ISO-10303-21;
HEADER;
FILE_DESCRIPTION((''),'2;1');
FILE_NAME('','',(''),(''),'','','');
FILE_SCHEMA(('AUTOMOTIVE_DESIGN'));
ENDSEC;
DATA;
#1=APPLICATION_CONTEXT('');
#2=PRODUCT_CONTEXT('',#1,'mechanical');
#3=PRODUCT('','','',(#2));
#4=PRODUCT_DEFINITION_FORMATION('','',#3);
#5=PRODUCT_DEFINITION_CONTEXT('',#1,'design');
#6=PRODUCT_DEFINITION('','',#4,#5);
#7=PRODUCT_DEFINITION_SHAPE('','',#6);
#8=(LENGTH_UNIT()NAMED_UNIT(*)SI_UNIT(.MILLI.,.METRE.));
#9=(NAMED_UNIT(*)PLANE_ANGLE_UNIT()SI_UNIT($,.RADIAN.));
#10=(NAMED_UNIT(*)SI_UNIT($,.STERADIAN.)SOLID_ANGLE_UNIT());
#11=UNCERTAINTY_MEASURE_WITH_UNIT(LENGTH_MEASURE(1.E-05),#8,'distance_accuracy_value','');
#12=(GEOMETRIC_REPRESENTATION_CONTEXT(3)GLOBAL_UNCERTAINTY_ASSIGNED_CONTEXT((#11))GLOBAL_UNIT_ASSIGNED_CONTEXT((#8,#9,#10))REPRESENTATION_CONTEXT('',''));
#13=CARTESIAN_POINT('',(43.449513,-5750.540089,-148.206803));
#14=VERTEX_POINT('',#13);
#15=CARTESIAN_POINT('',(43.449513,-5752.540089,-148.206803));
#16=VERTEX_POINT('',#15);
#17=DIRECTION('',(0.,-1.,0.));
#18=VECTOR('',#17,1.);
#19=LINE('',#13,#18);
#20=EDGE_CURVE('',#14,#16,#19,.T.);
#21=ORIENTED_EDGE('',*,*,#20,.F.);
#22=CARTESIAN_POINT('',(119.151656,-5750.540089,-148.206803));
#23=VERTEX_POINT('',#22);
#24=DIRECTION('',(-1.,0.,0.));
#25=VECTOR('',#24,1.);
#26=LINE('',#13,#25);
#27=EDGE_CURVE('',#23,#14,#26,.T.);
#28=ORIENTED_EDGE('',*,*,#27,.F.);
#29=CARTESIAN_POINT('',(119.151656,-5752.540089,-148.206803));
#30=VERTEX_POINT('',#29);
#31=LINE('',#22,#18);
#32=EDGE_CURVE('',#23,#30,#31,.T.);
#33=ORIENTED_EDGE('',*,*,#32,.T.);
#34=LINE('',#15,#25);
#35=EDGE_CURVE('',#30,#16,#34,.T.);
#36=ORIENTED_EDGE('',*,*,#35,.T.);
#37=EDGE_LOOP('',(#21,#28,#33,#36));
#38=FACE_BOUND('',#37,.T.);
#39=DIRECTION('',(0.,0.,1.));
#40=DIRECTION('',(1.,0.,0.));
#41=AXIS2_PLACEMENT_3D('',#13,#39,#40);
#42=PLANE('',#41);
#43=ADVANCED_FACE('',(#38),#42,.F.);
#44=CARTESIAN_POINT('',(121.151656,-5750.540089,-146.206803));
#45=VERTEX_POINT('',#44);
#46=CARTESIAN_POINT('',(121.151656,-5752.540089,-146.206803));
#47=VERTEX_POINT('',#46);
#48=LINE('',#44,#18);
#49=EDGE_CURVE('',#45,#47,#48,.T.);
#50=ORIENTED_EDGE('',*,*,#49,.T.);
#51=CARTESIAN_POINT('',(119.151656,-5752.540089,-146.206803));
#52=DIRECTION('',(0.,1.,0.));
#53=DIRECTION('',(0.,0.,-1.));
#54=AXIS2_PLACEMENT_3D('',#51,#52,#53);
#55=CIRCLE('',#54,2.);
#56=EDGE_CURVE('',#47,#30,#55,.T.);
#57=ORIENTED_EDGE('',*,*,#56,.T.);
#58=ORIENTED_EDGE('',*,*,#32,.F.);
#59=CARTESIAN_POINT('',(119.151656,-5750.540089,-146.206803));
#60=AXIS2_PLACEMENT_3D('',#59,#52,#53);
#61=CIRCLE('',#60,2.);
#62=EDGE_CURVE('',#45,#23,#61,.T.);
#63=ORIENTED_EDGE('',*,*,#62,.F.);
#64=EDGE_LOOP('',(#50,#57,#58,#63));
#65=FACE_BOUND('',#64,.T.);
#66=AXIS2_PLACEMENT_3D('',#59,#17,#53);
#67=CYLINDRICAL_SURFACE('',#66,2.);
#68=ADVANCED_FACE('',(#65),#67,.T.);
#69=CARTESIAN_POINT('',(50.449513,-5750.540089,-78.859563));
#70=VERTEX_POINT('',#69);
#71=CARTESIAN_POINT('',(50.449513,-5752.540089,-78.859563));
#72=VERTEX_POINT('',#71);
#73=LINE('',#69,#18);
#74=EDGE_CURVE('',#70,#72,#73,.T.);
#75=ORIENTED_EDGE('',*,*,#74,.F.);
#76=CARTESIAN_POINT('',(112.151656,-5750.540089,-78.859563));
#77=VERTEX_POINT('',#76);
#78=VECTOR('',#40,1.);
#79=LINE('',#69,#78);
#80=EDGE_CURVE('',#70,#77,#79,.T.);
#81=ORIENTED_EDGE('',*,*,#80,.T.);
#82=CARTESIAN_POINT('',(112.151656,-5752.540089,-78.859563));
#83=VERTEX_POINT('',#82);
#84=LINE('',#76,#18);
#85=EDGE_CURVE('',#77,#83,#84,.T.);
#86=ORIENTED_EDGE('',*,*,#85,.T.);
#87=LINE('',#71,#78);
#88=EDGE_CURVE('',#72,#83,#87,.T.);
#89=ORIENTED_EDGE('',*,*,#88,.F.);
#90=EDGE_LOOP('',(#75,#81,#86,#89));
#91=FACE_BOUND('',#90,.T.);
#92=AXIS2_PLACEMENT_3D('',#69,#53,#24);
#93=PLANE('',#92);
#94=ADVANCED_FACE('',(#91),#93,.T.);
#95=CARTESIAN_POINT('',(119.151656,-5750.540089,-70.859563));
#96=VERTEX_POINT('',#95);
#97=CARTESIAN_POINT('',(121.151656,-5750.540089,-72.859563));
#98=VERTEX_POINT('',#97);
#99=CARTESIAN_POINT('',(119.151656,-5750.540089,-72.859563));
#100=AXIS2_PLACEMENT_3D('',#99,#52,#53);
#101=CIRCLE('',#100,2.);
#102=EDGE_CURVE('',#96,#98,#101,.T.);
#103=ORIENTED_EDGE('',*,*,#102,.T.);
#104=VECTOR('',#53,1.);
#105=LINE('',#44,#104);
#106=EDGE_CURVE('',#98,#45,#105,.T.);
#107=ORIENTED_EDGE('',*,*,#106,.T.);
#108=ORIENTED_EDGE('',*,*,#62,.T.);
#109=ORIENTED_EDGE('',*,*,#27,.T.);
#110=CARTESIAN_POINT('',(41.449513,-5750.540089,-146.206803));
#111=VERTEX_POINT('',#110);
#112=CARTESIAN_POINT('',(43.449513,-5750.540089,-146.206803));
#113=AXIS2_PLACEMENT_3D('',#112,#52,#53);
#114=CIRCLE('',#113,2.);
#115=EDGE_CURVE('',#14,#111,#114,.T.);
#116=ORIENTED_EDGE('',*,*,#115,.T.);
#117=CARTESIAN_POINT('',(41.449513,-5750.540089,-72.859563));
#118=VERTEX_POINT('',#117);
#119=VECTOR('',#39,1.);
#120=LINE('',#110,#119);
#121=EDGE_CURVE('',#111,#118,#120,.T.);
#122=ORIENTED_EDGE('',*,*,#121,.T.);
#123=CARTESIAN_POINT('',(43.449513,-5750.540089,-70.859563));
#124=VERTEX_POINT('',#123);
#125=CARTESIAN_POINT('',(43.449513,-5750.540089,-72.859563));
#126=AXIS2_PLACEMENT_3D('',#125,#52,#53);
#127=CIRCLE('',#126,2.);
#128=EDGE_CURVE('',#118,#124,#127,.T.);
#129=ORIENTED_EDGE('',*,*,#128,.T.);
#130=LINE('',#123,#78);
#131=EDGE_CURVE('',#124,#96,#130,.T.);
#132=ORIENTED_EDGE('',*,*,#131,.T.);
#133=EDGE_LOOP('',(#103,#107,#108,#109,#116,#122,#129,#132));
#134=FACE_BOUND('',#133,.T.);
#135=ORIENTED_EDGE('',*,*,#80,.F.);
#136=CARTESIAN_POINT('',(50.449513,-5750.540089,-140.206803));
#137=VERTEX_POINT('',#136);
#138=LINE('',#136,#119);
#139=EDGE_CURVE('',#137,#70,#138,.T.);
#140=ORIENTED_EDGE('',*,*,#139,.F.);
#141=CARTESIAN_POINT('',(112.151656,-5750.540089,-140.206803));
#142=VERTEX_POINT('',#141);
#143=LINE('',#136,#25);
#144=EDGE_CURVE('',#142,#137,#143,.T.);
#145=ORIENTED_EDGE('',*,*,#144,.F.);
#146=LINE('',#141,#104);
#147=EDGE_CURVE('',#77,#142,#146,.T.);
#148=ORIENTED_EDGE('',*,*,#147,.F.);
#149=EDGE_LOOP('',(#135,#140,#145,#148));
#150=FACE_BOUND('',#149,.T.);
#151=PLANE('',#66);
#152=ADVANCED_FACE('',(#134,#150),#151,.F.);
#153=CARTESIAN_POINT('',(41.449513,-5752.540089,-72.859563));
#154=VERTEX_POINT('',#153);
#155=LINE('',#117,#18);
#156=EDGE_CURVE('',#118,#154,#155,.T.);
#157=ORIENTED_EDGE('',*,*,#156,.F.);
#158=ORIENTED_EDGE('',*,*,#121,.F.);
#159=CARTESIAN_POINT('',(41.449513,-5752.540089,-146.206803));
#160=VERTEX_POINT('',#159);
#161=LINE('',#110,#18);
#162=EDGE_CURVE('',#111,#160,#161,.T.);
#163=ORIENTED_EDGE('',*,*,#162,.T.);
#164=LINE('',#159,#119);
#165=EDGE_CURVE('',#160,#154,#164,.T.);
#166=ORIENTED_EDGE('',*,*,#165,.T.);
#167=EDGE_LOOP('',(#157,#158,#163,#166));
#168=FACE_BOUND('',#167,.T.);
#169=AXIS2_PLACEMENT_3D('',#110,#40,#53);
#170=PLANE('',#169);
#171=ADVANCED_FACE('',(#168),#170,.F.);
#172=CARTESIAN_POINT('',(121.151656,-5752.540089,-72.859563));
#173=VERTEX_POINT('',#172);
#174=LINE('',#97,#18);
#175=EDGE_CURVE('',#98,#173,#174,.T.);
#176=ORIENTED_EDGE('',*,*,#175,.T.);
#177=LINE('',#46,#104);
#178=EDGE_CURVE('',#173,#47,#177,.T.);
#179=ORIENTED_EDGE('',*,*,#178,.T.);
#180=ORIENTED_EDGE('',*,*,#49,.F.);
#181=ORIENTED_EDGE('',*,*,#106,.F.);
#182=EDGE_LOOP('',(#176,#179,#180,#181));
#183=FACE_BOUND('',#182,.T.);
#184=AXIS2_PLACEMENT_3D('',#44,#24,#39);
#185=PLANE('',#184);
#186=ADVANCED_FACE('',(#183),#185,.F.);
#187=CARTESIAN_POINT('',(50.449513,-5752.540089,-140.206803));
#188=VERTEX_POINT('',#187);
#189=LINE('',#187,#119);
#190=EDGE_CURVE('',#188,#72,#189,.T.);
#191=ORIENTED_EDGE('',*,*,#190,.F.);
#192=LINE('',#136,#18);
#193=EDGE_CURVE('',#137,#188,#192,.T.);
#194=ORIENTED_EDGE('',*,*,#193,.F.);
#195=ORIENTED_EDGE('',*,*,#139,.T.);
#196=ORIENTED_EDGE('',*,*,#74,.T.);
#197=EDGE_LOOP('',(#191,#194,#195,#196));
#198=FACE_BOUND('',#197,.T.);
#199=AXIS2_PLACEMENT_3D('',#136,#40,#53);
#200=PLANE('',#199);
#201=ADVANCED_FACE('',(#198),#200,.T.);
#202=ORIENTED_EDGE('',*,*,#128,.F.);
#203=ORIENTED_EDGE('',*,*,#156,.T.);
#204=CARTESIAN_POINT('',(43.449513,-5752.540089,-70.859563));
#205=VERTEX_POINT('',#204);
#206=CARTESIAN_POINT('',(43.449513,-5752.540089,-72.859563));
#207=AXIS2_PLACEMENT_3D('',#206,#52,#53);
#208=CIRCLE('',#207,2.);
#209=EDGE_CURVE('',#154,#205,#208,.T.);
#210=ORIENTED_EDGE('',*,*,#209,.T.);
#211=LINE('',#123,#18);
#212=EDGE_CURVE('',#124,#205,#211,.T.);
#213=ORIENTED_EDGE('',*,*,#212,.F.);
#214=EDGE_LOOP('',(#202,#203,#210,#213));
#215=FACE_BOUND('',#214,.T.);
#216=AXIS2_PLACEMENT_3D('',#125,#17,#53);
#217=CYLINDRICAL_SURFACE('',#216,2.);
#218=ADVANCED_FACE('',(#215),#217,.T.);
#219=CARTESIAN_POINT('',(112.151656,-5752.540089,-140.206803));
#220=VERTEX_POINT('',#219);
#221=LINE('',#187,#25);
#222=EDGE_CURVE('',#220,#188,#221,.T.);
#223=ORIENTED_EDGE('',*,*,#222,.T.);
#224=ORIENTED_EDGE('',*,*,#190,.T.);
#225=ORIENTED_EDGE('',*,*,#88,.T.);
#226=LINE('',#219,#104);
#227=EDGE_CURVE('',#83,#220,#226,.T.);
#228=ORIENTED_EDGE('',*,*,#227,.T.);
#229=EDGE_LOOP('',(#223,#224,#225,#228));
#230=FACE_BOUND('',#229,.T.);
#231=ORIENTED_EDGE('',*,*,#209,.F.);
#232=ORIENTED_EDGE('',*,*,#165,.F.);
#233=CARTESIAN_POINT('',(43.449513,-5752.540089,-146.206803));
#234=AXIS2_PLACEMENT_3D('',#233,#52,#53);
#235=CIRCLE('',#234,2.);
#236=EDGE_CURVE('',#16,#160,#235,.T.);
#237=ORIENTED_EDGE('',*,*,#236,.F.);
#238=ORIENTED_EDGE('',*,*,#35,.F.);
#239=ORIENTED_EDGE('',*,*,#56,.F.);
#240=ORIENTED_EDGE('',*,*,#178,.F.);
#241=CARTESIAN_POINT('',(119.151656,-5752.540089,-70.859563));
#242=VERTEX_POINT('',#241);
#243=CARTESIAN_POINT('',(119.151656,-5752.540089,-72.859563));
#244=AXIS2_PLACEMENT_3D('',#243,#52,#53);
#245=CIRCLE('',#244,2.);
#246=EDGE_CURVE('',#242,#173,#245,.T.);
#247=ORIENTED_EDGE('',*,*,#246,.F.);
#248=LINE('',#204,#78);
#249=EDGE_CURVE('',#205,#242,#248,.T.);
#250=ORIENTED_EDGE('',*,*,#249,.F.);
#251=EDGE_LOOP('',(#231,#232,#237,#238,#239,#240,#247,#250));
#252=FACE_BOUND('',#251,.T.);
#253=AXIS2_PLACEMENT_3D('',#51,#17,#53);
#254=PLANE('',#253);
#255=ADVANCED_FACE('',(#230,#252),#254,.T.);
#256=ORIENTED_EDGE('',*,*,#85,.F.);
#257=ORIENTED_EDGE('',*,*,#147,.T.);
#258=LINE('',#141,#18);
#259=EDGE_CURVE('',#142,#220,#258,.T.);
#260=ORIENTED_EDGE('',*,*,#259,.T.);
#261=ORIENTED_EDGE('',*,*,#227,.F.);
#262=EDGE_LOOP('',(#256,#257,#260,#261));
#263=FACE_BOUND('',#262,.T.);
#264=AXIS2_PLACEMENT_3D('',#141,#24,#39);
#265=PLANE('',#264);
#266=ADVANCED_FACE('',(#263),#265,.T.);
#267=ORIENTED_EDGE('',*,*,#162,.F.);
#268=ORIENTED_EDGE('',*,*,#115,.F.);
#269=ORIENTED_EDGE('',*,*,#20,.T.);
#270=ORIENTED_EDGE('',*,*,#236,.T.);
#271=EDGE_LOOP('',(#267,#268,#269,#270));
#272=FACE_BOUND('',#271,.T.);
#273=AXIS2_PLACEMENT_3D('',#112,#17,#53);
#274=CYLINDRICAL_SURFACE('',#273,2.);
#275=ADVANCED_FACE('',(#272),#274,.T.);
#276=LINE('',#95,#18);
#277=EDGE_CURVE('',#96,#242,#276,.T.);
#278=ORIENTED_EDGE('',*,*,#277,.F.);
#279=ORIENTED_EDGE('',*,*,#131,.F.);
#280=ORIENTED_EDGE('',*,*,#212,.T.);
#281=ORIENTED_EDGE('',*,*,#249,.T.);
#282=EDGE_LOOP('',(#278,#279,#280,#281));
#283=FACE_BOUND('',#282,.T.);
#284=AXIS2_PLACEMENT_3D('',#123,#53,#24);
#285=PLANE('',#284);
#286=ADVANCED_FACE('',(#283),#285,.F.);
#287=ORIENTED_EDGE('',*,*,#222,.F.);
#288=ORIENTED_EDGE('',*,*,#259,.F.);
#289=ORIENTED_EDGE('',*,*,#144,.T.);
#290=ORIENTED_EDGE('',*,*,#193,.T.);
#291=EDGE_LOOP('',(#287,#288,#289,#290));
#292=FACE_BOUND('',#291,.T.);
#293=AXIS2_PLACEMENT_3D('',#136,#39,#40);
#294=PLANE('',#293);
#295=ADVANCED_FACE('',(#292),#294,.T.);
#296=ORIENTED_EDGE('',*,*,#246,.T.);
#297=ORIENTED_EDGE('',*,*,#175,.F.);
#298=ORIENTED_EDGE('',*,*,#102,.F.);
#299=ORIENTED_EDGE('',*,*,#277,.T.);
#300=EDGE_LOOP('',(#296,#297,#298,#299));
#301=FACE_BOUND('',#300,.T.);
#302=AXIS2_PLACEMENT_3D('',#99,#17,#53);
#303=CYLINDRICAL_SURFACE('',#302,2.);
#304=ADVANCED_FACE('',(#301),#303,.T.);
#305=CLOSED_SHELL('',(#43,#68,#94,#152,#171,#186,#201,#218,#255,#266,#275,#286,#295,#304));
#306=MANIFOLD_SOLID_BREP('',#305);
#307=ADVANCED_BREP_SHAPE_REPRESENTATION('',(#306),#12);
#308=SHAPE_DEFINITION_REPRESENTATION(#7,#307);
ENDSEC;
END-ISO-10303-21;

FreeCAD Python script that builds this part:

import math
import FreeCAD as App
import Part
import Sketcher
from FreeCAD import Vector
Q = App.Units.Quantity


def add_polygon(sketch, points):
    """Adds a closed chain of lines whose ends are joined by coincident constraints."""
    first, n = sketch.GeometryCount, len(points)
    for a, b in zip(points, points[1:] + points[:1]):
        sketch.addGeometry(Part.LineSegment(App.Vector(*a, 0), App.Vector(*b, 0)), False)
    for i in range(n):
        sketch.addConstraint(Sketcher.Constraint("Coincident", first + i, 2, first + (i + 1) % n, 1))

doc = App.newDocument("Part")
body = doc.addObject("PartDesign::Body", "Body")

# Sketch on XZ plane
sketch1 = body.newObject("Sketcher::SketchObject", "Sketch")
sketch1.AttachmentSupport = (doc.getObject("XZ_Plane"), [""])
sketch1.MapMode = "FlatFace"
sketch1.AttachmentOffset = App.Placement(Vector(0, 0, 5752.540089), App.Rotation())
sketch1.addGeometry(Part.LineSegment(Vector(119.2, -148.2, 0), Vector(43.4, -148.2, 0)), False)  # 0
sketch1.addGeometry(Part.ArcOfCircle(Part.Circle(Vector(43.4, -146.2, 0), Vector(0, 0, 1), 2), math.radians(180), math.radians(270)), False)  # 1
sketch1.addGeometry(Part.LineSegment(Vector(41.4, -146.2, 0), Vector(41.4, -72.9, 0)), False)  # 2
sketch1.addGeometry(Part.ArcOfCircle(Part.Circle(Vector(43.4, -72.9, 0), Vector(0, 0, 1), 2), math.radians(90), math.radians(180)), False)  # 3
sketch1.addGeometry(Part.LineSegment(Vector(43.4, -70.9, 0), Vector(119.2, -70.9, 0)), False)  # 4
sketch1.addGeometry(Part.ArcOfCircle(Part.Circle(Vector(119.2, -72.9, 0), Vector(0, 0, 1), 2), math.radians(0), math.radians(90)), False)  # 5
sketch1.addGeometry(Part.LineSegment(Vector(121.2, -72.9, 0), Vector(121.2, -146.2, 0)), False)  # 6
sketch1.addGeometry(Part.ArcOfCircle(Part.Circle(Vector(119.2, -146.2, 0), Vector(0, 0, 1), 2), math.radians(-90), math.radians(0)), False)  # 7
add_polygon(sketch1, [(50.4, -78.9), (50.4, -140.2), (112.2, -140.2), (112.2, -78.9)])  # lines 8-11
sketch1.addConstraint([
    Sketcher.Constraint("Tangent", 0, 2, 1, 2),
    Sketcher.Constraint("Tangent", 1, 1, 2, 1),
    Sketcher.Constraint("Tangent", 2, 2, 3, 2),
    Sketcher.Constraint("Tangent", 3, 1, 4, 1),
    Sketcher.Constraint("Tangent", 4, 2, 5, 2),
    Sketcher.Constraint("Tangent", 5, 1, 6, 1),
    Sketcher.Constraint("Tangent", 6, 2, 7, 2),
    Sketcher.Constraint("Tangent", 7, 1, 0, 1),
    Sketcher.Constraint("Horizontal", 0),
    Sketcher.Constraint("Vertical", 2),
    Sketcher.Constraint("Horizontal", 4),
    Sketcher.Constraint("Vertical", 6),
    Sketcher.Constraint("Vertical", 8),
    Sketcher.Constraint("Horizontal", 9),
    Sketcher.Constraint("Vertical", 10),
    Sketcher.Constraint("Horizontal", 11),
    Sketcher.Constraint("Equal", 1, 3),
    Sketcher.Constraint("Equal", 3, 5),
    Sketcher.Constraint("Equal", 5, 7),
    Sketcher.Constraint("Radius", 1, Q("2 mm")),
    Sketcher.Constraint("DistanceX", 1, 3, 8, 2, Q("7 mm")),
    Sketcher.Constraint("DistanceY", 1, 3, 8, 2, Q("6 mm")),
    Sketcher.Constraint("DistanceX", 9, 2, 7, 3, Q("7 mm")),
    Sketcher.Constraint("DistanceY", 10, 2, 5, 3, Q("6 mm")),
    Sketcher.Constraint("DistanceY", 2, 1, 2, 2, Q("73.34724 mm")),
    Sketcher.Constraint("DistanceX", 0, 2, 0, 1, Q("75.702143 mm")),
    Sketcher.Constraint("DistanceX", -1, 1, 1, 3, Q("43.449513 mm")),
    Sketcher.Constraint("DistanceY", 1, 3, -1, 1, Q("146.206803 mm")),
])
pad1 = body.newObject("PartDesign::Pad", "Pad")
pad1.Profile = sketch1
pad1.Length = 2
pad1.Reversed = True

doc.recompute()
